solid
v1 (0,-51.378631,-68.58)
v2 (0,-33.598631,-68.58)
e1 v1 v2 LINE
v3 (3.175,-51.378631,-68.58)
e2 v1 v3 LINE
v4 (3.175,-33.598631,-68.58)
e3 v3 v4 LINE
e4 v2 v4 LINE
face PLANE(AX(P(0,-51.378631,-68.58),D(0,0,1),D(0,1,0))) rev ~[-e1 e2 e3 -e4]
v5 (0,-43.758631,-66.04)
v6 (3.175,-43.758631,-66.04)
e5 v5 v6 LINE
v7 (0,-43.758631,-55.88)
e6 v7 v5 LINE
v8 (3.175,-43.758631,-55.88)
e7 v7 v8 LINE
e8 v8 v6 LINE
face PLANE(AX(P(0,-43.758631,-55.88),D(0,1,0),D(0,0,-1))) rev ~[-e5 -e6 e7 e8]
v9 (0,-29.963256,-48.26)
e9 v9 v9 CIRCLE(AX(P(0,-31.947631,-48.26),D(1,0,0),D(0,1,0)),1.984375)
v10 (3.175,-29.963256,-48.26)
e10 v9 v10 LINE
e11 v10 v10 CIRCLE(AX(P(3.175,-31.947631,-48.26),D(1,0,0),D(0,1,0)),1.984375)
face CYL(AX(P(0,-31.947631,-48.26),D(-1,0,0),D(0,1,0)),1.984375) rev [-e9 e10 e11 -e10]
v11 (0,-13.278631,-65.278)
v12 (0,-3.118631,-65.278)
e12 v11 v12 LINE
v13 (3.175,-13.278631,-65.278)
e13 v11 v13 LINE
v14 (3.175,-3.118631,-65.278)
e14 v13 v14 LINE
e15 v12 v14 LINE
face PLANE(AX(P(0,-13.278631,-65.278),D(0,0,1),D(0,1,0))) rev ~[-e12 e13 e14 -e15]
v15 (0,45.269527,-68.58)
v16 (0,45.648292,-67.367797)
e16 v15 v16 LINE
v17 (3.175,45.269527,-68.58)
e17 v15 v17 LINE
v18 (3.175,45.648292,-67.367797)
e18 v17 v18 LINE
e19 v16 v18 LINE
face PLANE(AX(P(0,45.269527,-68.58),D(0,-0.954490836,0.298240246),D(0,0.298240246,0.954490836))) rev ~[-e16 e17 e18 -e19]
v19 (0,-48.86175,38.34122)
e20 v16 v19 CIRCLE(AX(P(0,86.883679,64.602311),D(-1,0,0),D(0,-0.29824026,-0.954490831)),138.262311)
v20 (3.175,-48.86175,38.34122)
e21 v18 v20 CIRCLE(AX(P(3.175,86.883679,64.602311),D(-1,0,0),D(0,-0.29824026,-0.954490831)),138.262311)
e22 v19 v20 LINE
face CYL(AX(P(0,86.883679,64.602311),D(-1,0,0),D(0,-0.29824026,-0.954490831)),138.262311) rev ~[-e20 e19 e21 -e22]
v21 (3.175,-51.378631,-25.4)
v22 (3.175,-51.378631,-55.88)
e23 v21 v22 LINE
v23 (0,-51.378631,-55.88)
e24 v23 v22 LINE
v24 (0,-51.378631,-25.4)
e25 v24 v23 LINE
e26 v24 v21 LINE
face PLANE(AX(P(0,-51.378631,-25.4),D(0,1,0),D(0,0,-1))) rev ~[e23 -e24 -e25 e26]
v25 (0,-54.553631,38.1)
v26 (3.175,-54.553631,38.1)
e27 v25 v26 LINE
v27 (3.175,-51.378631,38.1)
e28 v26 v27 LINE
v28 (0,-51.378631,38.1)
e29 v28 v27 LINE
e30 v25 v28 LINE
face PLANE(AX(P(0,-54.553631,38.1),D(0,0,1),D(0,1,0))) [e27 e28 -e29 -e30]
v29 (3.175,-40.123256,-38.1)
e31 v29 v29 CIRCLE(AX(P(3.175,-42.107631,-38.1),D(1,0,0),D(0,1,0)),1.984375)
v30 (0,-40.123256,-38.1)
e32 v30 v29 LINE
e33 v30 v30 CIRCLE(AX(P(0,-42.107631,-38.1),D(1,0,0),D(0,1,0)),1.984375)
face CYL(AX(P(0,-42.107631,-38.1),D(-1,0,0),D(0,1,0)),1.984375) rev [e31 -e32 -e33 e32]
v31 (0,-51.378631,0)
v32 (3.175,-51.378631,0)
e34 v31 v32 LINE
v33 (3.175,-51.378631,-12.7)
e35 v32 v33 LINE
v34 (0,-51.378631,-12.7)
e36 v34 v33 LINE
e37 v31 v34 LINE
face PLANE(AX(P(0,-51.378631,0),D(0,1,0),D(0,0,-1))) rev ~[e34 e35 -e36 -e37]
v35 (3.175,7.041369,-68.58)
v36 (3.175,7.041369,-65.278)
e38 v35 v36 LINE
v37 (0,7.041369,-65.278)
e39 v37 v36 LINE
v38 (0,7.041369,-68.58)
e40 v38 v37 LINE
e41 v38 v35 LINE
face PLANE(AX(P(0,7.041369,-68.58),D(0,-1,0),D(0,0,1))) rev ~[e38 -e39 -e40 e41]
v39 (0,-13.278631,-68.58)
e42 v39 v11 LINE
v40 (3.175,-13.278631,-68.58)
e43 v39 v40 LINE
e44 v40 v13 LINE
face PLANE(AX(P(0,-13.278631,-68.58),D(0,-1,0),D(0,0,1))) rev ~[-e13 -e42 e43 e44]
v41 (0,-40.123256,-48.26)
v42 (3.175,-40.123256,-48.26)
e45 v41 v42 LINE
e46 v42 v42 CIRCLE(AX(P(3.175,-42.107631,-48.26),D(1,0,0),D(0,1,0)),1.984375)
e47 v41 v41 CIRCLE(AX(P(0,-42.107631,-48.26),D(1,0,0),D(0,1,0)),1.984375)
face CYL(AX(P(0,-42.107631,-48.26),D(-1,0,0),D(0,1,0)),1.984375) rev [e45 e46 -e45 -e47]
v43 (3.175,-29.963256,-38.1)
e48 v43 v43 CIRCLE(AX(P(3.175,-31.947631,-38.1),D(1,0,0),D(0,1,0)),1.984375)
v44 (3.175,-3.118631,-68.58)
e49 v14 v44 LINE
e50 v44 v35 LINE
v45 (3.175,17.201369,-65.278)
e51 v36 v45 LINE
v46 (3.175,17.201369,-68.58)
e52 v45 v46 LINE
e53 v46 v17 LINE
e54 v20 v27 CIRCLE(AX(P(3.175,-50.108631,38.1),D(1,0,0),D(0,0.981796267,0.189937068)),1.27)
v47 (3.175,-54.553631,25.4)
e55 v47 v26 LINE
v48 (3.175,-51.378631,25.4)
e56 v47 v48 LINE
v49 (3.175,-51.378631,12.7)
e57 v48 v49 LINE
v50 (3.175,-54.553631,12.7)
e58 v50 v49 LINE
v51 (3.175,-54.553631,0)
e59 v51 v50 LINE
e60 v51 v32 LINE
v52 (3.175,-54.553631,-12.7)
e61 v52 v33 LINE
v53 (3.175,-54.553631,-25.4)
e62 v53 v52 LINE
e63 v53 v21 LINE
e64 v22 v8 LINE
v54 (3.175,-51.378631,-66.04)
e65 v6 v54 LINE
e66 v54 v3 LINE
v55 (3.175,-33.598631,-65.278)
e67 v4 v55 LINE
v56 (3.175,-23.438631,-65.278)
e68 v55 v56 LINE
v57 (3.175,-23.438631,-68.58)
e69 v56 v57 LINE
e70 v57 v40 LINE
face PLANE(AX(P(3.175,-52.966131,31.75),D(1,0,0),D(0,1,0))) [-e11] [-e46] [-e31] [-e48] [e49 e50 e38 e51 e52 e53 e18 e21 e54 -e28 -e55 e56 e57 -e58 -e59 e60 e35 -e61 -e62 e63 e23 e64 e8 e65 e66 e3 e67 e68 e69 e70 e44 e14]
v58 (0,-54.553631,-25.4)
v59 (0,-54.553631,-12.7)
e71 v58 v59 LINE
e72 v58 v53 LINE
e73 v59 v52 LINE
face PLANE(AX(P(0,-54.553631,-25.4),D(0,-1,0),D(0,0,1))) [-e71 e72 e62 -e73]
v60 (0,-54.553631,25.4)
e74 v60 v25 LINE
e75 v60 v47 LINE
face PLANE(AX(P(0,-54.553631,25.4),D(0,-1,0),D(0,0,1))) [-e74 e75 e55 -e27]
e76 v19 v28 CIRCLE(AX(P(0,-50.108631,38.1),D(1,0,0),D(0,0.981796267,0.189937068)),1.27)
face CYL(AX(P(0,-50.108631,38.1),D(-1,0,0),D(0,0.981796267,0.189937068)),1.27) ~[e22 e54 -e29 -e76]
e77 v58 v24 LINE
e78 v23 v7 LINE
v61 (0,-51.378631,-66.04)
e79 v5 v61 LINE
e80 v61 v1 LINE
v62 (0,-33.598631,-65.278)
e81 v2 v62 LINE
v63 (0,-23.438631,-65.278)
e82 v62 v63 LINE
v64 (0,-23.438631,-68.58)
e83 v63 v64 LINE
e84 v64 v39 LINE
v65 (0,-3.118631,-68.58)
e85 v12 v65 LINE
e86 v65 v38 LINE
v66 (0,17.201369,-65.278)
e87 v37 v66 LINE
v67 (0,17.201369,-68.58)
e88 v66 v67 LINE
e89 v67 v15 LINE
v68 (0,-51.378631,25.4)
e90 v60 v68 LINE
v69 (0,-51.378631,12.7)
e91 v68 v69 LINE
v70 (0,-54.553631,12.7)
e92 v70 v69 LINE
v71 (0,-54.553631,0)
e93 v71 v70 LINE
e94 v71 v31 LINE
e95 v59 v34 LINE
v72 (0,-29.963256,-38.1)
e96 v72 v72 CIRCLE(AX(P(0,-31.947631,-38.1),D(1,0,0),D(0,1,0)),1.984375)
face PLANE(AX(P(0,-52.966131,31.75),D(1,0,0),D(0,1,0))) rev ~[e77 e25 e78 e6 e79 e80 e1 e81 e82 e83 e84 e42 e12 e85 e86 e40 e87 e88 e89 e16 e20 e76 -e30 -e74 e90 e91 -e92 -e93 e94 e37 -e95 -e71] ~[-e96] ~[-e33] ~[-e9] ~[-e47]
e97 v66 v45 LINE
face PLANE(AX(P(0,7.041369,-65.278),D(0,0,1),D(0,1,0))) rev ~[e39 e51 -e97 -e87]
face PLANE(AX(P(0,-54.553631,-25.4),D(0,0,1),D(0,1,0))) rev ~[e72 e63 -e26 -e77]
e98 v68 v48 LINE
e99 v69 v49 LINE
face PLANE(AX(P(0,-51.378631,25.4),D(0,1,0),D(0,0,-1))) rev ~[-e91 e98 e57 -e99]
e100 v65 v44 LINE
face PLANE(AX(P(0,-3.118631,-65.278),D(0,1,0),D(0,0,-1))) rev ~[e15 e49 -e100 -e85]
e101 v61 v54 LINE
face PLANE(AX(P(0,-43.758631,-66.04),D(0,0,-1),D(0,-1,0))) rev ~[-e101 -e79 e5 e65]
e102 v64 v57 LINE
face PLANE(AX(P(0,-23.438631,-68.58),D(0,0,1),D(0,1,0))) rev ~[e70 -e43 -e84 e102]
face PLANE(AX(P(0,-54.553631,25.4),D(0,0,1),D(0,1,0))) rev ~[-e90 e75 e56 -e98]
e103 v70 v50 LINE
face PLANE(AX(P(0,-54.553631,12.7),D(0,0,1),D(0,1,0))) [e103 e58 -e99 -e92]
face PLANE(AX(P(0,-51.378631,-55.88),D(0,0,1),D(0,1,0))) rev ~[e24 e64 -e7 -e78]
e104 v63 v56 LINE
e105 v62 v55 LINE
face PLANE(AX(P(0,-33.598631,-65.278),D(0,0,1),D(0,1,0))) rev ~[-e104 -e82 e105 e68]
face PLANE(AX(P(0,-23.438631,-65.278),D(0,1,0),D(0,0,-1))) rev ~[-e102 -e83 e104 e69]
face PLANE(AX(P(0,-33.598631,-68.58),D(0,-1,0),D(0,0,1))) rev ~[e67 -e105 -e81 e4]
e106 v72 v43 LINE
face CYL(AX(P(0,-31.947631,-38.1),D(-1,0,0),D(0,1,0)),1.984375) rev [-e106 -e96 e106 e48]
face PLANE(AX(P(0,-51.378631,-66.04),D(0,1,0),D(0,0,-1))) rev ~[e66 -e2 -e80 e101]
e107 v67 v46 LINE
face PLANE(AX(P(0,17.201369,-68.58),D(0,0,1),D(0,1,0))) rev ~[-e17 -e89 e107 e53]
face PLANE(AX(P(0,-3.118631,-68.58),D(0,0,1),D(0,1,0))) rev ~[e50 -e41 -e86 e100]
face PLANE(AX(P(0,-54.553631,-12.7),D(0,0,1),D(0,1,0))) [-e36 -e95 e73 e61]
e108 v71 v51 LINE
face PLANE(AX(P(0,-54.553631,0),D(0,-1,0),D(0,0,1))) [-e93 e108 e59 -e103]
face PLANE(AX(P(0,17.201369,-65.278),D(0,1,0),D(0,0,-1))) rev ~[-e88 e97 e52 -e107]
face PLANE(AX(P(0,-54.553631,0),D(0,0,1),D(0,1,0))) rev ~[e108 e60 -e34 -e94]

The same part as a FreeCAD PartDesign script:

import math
import FreeCAD as App
import Part
import Sketcher
Q = App.Units.Quantity

doc = App.newDocument("Part")
body = doc.addObject("PartDesign::Body", "Body")

# Sketch on YZ plane
sketch1 = body.newObject("Sketcher::SketchObject", "Sketch")
sketch1.AttachmentSupport = (doc.getObject("YZ_Plane"), [""])
sketch1.MapMode = "FlatFace"
sketch1.addGeometry([
    Part.LineSegment(App.Vector(-54.553631, 38.1, 0), App.Vector(-54.553631, 25.4, 0)),  # 0
    Part.LineSegment(App.Vector(-54.553631, 25.4, 0), App.Vector(-51.378631, 25.4, 0)),  # 1
    Part.LineSegment(App.Vector(-51.378631, 25.4, 0), App.Vector(-51.378631, 12.7, 0)),  # 2
    Part.LineSegment(App.Vector(-51.378631, 12.7, 0), App.Vector(-54.553631, 12.7, 0)),  # 3
    Part.LineSegment(App.Vector(-54.553631, 12.7, 0), App.Vector(-54.553631, 0, 0)),  # 4
    Part.LineSegment(App.Vector(-54.553631, 0, 0), App.Vector(-51.378631, 0, 0)),  # 5
    Part.LineSegment(App.Vector(-51.378631, 0, 0), App.Vector(-51.378631, -12.7, 0)),  # 6
    Part.LineSegment(App.Vector(-51.378631, -12.7, 0), App.Vector(-54.553631, -12.7, 0)),  # 7
    Part.LineSegment(App.Vector(-54.553631, -12.7, 0), App.Vector(-54.553631, -25.4, 0)),  # 8
    Part.LineSegment(App.Vector(-54.553631, -25.4, 0), App.Vector(-51.378631, -25.4, 0)),  # 9
    Part.LineSegment(App.Vector(-51.378631, -25.4, 0), App.Vector(-51.378631, -55.88, 0)),  # 10
    Part.LineSegment(App.Vector(-51.378631, -55.88, 0), App.Vector(-43.758631, -55.88, 0)),  # 11
    Part.LineSegment(App.Vector(-43.758631, -55.88, 0), App.Vector(-43.758631, -66.04, 0)),  # 12
    Part.LineSegment(App.Vector(-43.758631, -66.04, 0), App.Vector(-51.378631, -66.04, 0)),  # 13
    Part.LineSegment(App.Vector(-51.378631, -66.04, 0), App.Vector(-51.378631, -68.58, 0)),  # 14
    Part.LineSegment(App.Vector(-51.378631, -68.58, 0), App.Vector(-33.598631, -68.58, 0)),  # 15
    Part.LineSegment(App.Vector(-33.598631, -68.58, 0), App.Vector(-33.598631, -65.278, 0)),  # 16
    Part.LineSegment(App.Vector(-33.598631, -65.278, 0), App.Vector(-23.438631, -65.278, 0)),  # 17
    Part.LineSegment(App.Vector(-23.438631, -65.278, 0), App.Vector(-23.438631, -68.58, 0)),  # 18
    Part.LineSegment(App.Vector(-23.438631, -68.58, 0), App.Vector(-13.278631, -68.58, 0)),  # 19
    Part.LineSegment(App.Vector(-13.278631, -68.58, 0), App.Vector(-13.278631, -65.278, 0)),  # 20
    Part.LineSegment(App.Vector(-13.278631, -65.278, 0), App.Vector(-3.118631, -65.278, 0)),  # 21
    Part.LineSegment(App.Vector(-3.118631, -65.278, 0), App.Vector(-3.118631, -68.58, 0)),  # 22
    Part.LineSegment(App.Vector(-3.118631, -68.58, 0), App.Vector(7.041369, -68.58, 0)),  # 23
    Part.LineSegment(App.Vector(7.041369, -68.58, 0), App.Vector(7.041369, -65.278, 0)),  # 24
    Part.LineSegment(App.Vector(7.041369, -65.278, 0), App.Vector(17.201369, -65.278, 0)),  # 25
    Part.LineSegment(App.Vector(17.201369, -65.278, 0), App.Vector(17.201369, -68.58, 0)),  # 26
    Part.LineSegment(App.Vector(17.201369, -68.58, 0), App.Vector(45.269527, -68.58, 0)),  # 27
    Part.LineSegment(App.Vector(45.269527, -68.58, 0), App.Vector(45.648292, -67.367797, 0)),  # 28
    Part.ArcOfCircle(Part.Circle(App.Vector(86.883679, 64.602311, 0), App.Vector(0, 0, 1), 138.262311), math.radians(-169.050908), math.radians(-107.35194)),  # 29
    Part.ArcOfCircle(Part.Circle(App.Vector(-50.108631, 38.1, 0), App.Vector(0, 0, 1), 1.27), math.radians(10.949112), math.radians(179.999998)),  # 30
    Part.LineSegment(App.Vector(-51.378631, 38.1, 0), App.Vector(-54.553631, 38.1, 0)),  # 31
    Part.Circle(App.Vector(-42.107631, -48.26, 0), App.Vector(0, 0, 1), 1.984375),  # 32
    Part.Circle(App.Vector(-31.947631, -48.26, 0), App.Vector(0, 0, 1), 1.984375),  # 33
    Part.Circle(App.Vector(-42.107631, -38.1, 0), App.Vector(0, 0, 1), 1.984375),  # 34
    Part.Circle(App.Vector(-31.947631, -38.1, 0), App.Vector(0, 0, 1), 1.984375),  # 35
], False)
sketch1.addConstraint([
    Sketcher.Constraint("Coincident", 0, 2, 1, 1),
    Sketcher.Constraint("Coincident", 1, 2, 2, 1),
    Sketcher.Constraint("Coincident", 2, 2, 3, 1),
    Sketcher.Constraint("Coincident", 3, 2, 4, 1),
    Sketcher.Constraint("Coincident", 4, 2, 5, 1),
    Sketcher.Constraint("Coincident", 5, 2, 6, 1),
    Sketcher.Constraint("Coincident", 6, 2, 7, 1),
    Sketcher.Constraint("Coincident", 7, 2, 8, 1),
    Sketcher.Constraint("Coincident", 8, 2, 9, 1),
    Sketcher.Constraint("Coincident", 9, 2, 10, 1),
    Sketcher.Constraint("Coincident", 10, 2, 11, 1),
    Sketcher.Constraint("Coincident", 11, 2, 12, 1),
    Sketcher.Constraint("Coincident", 12, 2, 13, 1),
    Sketcher.Constraint("Coincident", 13, 2, 14, 1),
    Sketcher.Constraint("Coincident", 14, 2, 15, 1),
    Sketcher.Constraint("Coincident", 15, 2, 16, 1),
    Sketcher.Constraint("Coincident", 16, 2, 17, 1),
    Sketcher.Constraint("Coincident", 17, 2, 18, 1),
    Sketcher.Constraint("Coincident", 18, 2, 19, 1),
    Sketcher.Constraint("Coincident", 19, 2, 20, 1),
    Sketcher.Constraint("Coincident", 20, 2, 21, 1),
    Sketcher.Constraint("Coincident", 21, 2, 22, 1),
    Sketcher.Constraint("Coincident", 22, 2, 23, 1),
    Sketcher.Constraint("Coincident", 23, 2, 24, 1),
    Sketcher.Constraint("Coincident", 24, 2, 25, 1),
    Sketcher.Constraint("Coincident", 25, 2, 26, 1),
    Sketcher.Constraint("Coincident", 26, 2, 27, 1),
    Sketcher.Constraint("Coincident", 27, 2, 28, 1),
    Sketcher.Constraint("Coincident", 28, 2, 29, 2),
    Sketcher.Constraint("Tangent", 29, 1, 30, 1),
    Sketcher.Constraint("Coincident", 30, 2, 31, 1),
    Sketcher.Constraint("Coincident", 31, 2, 0, 1),
    Sketcher.Constraint("Vertical", 0),
    Sketcher.Constraint("Horizontal", 1),
    Sketcher.Constraint("Vertical", 2),
    Sketcher.Constraint("Horizontal", 3),
    Sketcher.Constraint("Vertical", 4),
    Sketcher.Constraint("Horizontal", 5),
    Sketcher.Constraint("Vertical", 6),
    Sketcher.Constraint("Horizontal", 7),
    Sketcher.Constraint("Vertical", 8),
    Sketcher.Constraint("Horizontal", 9),
    Sketcher.Constraint("Vertical", 10),
    Sketcher.Constraint("Horizontal", 11),
    Sketcher.Constraint("Vertical", 12),
    Sketcher.Constraint("Horizontal", 13),
    Sketcher.Constraint("Vertical", 14),
    Sketcher.Constraint("Horizontal", 15),
    Sketcher.Constraint("Vertical", 16),
    Sketcher.Constraint("Horizontal", 17),
    Sketcher.Constraint("Vertical", 18),
    Sketcher.Constraint("Horizontal", 19),
    Sketcher.Constraint("Vertical", 20),
    Sketcher.Constraint("Horizontal", 21),
    Sketcher.Constraint("Vertical", 22),
    Sketcher.Constraint("Horizontal", 23),
    Sketcher.Constraint("Vertical", 24),
    Sketcher.Constraint("Horizontal", 25),
    Sketcher.Constraint("Vertical", 26),
    Sketcher.Constraint("Horizontal", 27),
    Sketcher.Constraint("Horizontal", 31),
    Sketcher.Constraint("Equal", 32, 33),
    Sketcher.Constraint("Equal", 33, 34),
    Sketcher.Constraint("Equal", 34, 35),
    Sketcher.Constraint("Symmetric", 2, 2, 6, 2, -1),
    Sketcher.Constraint("Symmetric", 0, 2, 8, 2, -1),
    Sketcher.Constraint("PointOnObject", 4, 2, -1),
    Sketcher.Constraint("Horizontal", 32, 3, 33, 3),
    Sketcher.Constraint("Horizontal", 34, 3, 35, 3),
    Sketcher.Constraint("Horizontal", 15, 2, 18, 2),
    Sketcher.Constraint("Horizontal", 17, 2, 20, 2),
    Sketcher.Constraint("Horizontal", 19, 2, 22, 2),
    Sketcher.Constraint("Horizontal", 21, 2, 24, 2),
    Sketcher.Constraint("Horizontal", 23, 2, 26, 2),
    Sketcher.Constraint("Vertical", 32, 3, 34, 3),
    Sketcher.Constraint("Vertical", 33, 3, 35, 3),
    Sketcher.Constraint("Vertical", 0, 2, 3, 2),
    Sketcher.Constraint("Vertical", 6, 2, 9, 2),
    Sketcher.Constraint("Vertical", 10, 2, 13, 2),
    Sketcher.Constraint("Vertical", 14, 2, 30, 2),
    Sketcher.Constraint("Equal", 17, 19),
    Sketcher.Constraint("Equal", 19, 21),
    Sketcher.Constraint("Equal", 21, 23),
    Sketcher.Constraint("Equal", 23, 25),
    Sketcher.Constraint("Equal", 0, 2),
    Sketcher.Constraint("Equal", 2, 4),
    Sketcher.Constraint("Equal", 25, 12),
    Sketcher.Constraint("Radius", 30, Q("0.05 in")),
    Sketcher.Constraint("Diameter", 32, Q("0.15625 in")),
    Sketcher.Constraint("DistanceX", 11, 1, 11, 2, Q("0.3 in")),
    Sketcher.Constraint("DistanceX", 15, 1, 15, 2, Q("0.7 in")),
    Sketcher.Constraint("DistanceX", 17, 1, 17, 2, Q("0.4 in")),
    Sketcher.Constraint("DistanceY", 0, 2, 0, 1, Q("0.5 in")),
    Sketcher.Constraint("DistanceY", 10, 2, 10, 1, Q("1.2 in")),
    Sketcher.Constraint("DistanceY", 14, 2, 14, 1, Q("0.1 in")),
    Sketcher.Constraint("DistanceY", 34, 3, 30, 3, Q("3 in")),
    Sketcher.Constraint("DistanceY", 2, 2, 30, 3, Q("1 in")),
    Sketcher.Constraint("DistanceY", 16, 1, 16, 2, Q("0.13 in")),
    Sketcher.Constraint("DistanceY", 32, 3, -1, 1, Q("1.9 in")),
    Sketcher.Constraint("DistanceX", 32, 3, 33, 3, Q("0.4 in")),
    Sketcher.Constraint("Distance", 28, Q("0.05 in")),
    Sketcher.Constraint("DistanceX", 1, 1, 1, 2, Q("0.125 in")),
    Sketcher.Constraint("DistanceX", 0, 2, 34, 3, Q("0.49 in")),
    Sketcher.Constraint("Radius", 29, 138.262311),
    Sketcher.Constraint("DistanceX", 27, 1, 27, 2, 28.068158),
    Sketcher.Constraint("DistanceX", -1, 1, 29, 3, 86.883679),
    Sketcher.Constraint("DistanceX", -1, 1, 28, 2, 45.648292),
])
pad1 = body.newObject("PartDesign::Pad", "Pad")
pad1.Profile = sketch1
pad1.Length = Q("0.125 in")

doc.recompute()
